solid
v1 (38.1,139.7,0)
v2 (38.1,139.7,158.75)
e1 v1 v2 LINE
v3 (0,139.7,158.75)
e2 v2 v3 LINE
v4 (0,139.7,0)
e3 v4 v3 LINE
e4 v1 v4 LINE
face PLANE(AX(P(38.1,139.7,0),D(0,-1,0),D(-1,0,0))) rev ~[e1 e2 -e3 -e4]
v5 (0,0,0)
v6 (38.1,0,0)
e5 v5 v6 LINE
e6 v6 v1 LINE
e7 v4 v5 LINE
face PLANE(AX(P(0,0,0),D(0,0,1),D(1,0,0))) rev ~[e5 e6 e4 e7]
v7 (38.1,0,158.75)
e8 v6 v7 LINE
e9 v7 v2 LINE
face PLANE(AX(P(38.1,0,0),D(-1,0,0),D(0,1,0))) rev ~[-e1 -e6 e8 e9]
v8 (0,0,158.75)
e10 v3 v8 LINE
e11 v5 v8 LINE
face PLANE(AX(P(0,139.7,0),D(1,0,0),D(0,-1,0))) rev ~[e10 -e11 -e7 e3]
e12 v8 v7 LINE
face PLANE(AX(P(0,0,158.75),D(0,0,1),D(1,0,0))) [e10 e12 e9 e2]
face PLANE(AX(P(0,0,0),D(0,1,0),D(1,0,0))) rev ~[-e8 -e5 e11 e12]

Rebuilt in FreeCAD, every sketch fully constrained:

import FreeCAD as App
import Part
import Sketcher
from FreeCAD import Vector
Q = App.Units.Quantity

doc = App.newDocument("Part")
body = doc.addObject("PartDesign::Body", "Body")

# Sketch on XY plane
sketch1 = body.newObject("Sketcher::SketchObject", "Sketch")
sketch1.AttachmentSupport = (doc.getObject("XY_Plane"), [""])
sketch1.MapMode = "FlatFace"
sketch1.addGeometry([
    Part.LineSegment(Vector(0, 140, 0), Vector(0, 0, 0)),
    Part.LineSegment(Vector(0, 0, 0), Vector(38, 0, 0)),
    Part.LineSegment(Vector(38, 0, 0), Vector(38, 140, 0)),
    Part.LineSegment(Vector(38, 140, 0), Vector(0, 140, 0)),
], False)
sketch1.addConstraint([
    Sketcher.Constraint("Coincident", 0, 2, 1, 1),
    Sketcher.Constraint("Coincident", 1, 2, 2, 1),
    Sketcher.Constraint("Coincident", 2, 2, 3, 1),
    Sketcher.Constraint("Coincident", 3, 2, 0, 1),
    Sketcher.Constraint("Vertical", 0),
    Sketcher.Constraint("Horizontal", 1),
    Sketcher.Constraint("Vertical", 2),
    Sketcher.Constraint("Horizontal", 3),
    Sketcher.Constraint("Coincident", 0, 2, -1, 1),
    Sketcher.Constraint("DistanceX", 1, 1, 1, 2, Q("1.5 in")),
    Sketcher.Constraint("DistanceY", 0, 2, 0, 1, Q("5.5 in")),
])
pad1 = body.newObject("PartDesign::Pad", "Pad")
pad1.Profile = sketch1
pad1.Length = Q("6.25 in")

doc.recompute()
